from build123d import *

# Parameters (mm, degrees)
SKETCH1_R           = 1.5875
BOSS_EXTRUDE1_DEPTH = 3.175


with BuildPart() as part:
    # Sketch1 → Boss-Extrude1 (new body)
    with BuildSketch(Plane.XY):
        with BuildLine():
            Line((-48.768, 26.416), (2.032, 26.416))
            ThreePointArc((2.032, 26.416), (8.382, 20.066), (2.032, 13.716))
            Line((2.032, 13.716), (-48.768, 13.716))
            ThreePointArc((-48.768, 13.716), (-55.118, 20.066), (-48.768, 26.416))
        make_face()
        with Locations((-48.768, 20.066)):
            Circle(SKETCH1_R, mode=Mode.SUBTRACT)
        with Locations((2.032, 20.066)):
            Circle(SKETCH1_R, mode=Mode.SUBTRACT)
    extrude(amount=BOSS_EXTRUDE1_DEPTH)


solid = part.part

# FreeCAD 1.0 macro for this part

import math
import FreeCAD as App
import Part
import Sketcher
from FreeCAD import Vector
Q = App.Units.Quantity

doc = App.newDocument("Part")
body = doc.addObject("PartDesign::Body", "Body")

# Sketch on XY plane
sketch1 = body.newObject("Sketcher::SketchObject", "Sketch")
sketch1.AttachmentSupport = (doc.getObject("XY_Plane"), [""])
sketch1.MapMode = "FlatFace"
sketch1.addGeometry(Part.LineSegment(Vector(2.032, 26.416, 0), Vector(-48.768, 26.416, 0)), False)
sketch1.addGeometry(Part.ArcOfCircle(Part.Circle(Vector(-48.768, 20.066, 0), Vector(0, 0, 1), 6.35), math.radians(90), math.radians(270)), False)
sketch1.addGeometry(Part.LineSegment(Vector(-48.768, 13.716, 0), Vector(2.032, 13.716, 0)), False)
sketch1.addGeometry(Part.ArcOfCircle(Part.Circle(Vector(2.032, 20.066, 0), Vector(0, 0, 1), 6.35), math.radians(-90), math.radians(90)), False)
sketch1.addGeometry(Part.Circle(Vector(2.032, 20.066, 0), Vector(0, 0, 1), 1.5875), False)
sketch1.addGeometry(Part.Circle(Vector(-48.768, 20.066, 0), Vector(0, 0, 1), 1.5875), False)
sketch1.addConstraint(Sketcher.Constraint("Tangent", 0, 2, 1, 1))
sketch1.addConstraint(Sketcher.Constraint("Tangent", 1, 2, 2, 1))
sketch1.addConstraint(Sketcher.Constraint("Tangent", 2, 2, 3, 1))
sketch1.addConstraint(Sketcher.Constraint("Tangent", 3, 2, 0, 1))
sketch1.addConstraint(Sketcher.Constraint("Horizontal", 0))
sketch1.addConstraint(Sketcher.Constraint("Horizontal", 2))
sketch1.addConstraint(Sketcher.Constraint("Coincident", 4, 3, 3, 3))
sketch1.addConstraint(Sketcher.Constraint("Coincident", 5, 3, 1, 3))
sketch1.addConstraint(Sketcher.Constraint("Equal", 4, 5))
sketch1.addConstraint(Sketcher.Constraint("DistanceX", 0, 2, 0, 1, Q("2 in")))
sketch1.addConstraint(Sketcher.Constraint("Radius", 1, Q("0.25 in")))
sketch1.addConstraint(Sketcher.Constraint("Diameter", 4, Q("0.125 in")))
sketch1.addConstraint(Sketcher.Constraint("DistanceX", 1, 3, -1, 1, Q("1.92 in")))
sketch1.addConstraint(Sketcher.Constraint("DistanceY", -1, 1, 1, 3, Q("0.79 in")))
pad1 = body.newObject("PartDesign::Pad", "Pad")
pad1.Profile = sketch1
pad1.Length = Q("0.125 in")

doc.recompute()
